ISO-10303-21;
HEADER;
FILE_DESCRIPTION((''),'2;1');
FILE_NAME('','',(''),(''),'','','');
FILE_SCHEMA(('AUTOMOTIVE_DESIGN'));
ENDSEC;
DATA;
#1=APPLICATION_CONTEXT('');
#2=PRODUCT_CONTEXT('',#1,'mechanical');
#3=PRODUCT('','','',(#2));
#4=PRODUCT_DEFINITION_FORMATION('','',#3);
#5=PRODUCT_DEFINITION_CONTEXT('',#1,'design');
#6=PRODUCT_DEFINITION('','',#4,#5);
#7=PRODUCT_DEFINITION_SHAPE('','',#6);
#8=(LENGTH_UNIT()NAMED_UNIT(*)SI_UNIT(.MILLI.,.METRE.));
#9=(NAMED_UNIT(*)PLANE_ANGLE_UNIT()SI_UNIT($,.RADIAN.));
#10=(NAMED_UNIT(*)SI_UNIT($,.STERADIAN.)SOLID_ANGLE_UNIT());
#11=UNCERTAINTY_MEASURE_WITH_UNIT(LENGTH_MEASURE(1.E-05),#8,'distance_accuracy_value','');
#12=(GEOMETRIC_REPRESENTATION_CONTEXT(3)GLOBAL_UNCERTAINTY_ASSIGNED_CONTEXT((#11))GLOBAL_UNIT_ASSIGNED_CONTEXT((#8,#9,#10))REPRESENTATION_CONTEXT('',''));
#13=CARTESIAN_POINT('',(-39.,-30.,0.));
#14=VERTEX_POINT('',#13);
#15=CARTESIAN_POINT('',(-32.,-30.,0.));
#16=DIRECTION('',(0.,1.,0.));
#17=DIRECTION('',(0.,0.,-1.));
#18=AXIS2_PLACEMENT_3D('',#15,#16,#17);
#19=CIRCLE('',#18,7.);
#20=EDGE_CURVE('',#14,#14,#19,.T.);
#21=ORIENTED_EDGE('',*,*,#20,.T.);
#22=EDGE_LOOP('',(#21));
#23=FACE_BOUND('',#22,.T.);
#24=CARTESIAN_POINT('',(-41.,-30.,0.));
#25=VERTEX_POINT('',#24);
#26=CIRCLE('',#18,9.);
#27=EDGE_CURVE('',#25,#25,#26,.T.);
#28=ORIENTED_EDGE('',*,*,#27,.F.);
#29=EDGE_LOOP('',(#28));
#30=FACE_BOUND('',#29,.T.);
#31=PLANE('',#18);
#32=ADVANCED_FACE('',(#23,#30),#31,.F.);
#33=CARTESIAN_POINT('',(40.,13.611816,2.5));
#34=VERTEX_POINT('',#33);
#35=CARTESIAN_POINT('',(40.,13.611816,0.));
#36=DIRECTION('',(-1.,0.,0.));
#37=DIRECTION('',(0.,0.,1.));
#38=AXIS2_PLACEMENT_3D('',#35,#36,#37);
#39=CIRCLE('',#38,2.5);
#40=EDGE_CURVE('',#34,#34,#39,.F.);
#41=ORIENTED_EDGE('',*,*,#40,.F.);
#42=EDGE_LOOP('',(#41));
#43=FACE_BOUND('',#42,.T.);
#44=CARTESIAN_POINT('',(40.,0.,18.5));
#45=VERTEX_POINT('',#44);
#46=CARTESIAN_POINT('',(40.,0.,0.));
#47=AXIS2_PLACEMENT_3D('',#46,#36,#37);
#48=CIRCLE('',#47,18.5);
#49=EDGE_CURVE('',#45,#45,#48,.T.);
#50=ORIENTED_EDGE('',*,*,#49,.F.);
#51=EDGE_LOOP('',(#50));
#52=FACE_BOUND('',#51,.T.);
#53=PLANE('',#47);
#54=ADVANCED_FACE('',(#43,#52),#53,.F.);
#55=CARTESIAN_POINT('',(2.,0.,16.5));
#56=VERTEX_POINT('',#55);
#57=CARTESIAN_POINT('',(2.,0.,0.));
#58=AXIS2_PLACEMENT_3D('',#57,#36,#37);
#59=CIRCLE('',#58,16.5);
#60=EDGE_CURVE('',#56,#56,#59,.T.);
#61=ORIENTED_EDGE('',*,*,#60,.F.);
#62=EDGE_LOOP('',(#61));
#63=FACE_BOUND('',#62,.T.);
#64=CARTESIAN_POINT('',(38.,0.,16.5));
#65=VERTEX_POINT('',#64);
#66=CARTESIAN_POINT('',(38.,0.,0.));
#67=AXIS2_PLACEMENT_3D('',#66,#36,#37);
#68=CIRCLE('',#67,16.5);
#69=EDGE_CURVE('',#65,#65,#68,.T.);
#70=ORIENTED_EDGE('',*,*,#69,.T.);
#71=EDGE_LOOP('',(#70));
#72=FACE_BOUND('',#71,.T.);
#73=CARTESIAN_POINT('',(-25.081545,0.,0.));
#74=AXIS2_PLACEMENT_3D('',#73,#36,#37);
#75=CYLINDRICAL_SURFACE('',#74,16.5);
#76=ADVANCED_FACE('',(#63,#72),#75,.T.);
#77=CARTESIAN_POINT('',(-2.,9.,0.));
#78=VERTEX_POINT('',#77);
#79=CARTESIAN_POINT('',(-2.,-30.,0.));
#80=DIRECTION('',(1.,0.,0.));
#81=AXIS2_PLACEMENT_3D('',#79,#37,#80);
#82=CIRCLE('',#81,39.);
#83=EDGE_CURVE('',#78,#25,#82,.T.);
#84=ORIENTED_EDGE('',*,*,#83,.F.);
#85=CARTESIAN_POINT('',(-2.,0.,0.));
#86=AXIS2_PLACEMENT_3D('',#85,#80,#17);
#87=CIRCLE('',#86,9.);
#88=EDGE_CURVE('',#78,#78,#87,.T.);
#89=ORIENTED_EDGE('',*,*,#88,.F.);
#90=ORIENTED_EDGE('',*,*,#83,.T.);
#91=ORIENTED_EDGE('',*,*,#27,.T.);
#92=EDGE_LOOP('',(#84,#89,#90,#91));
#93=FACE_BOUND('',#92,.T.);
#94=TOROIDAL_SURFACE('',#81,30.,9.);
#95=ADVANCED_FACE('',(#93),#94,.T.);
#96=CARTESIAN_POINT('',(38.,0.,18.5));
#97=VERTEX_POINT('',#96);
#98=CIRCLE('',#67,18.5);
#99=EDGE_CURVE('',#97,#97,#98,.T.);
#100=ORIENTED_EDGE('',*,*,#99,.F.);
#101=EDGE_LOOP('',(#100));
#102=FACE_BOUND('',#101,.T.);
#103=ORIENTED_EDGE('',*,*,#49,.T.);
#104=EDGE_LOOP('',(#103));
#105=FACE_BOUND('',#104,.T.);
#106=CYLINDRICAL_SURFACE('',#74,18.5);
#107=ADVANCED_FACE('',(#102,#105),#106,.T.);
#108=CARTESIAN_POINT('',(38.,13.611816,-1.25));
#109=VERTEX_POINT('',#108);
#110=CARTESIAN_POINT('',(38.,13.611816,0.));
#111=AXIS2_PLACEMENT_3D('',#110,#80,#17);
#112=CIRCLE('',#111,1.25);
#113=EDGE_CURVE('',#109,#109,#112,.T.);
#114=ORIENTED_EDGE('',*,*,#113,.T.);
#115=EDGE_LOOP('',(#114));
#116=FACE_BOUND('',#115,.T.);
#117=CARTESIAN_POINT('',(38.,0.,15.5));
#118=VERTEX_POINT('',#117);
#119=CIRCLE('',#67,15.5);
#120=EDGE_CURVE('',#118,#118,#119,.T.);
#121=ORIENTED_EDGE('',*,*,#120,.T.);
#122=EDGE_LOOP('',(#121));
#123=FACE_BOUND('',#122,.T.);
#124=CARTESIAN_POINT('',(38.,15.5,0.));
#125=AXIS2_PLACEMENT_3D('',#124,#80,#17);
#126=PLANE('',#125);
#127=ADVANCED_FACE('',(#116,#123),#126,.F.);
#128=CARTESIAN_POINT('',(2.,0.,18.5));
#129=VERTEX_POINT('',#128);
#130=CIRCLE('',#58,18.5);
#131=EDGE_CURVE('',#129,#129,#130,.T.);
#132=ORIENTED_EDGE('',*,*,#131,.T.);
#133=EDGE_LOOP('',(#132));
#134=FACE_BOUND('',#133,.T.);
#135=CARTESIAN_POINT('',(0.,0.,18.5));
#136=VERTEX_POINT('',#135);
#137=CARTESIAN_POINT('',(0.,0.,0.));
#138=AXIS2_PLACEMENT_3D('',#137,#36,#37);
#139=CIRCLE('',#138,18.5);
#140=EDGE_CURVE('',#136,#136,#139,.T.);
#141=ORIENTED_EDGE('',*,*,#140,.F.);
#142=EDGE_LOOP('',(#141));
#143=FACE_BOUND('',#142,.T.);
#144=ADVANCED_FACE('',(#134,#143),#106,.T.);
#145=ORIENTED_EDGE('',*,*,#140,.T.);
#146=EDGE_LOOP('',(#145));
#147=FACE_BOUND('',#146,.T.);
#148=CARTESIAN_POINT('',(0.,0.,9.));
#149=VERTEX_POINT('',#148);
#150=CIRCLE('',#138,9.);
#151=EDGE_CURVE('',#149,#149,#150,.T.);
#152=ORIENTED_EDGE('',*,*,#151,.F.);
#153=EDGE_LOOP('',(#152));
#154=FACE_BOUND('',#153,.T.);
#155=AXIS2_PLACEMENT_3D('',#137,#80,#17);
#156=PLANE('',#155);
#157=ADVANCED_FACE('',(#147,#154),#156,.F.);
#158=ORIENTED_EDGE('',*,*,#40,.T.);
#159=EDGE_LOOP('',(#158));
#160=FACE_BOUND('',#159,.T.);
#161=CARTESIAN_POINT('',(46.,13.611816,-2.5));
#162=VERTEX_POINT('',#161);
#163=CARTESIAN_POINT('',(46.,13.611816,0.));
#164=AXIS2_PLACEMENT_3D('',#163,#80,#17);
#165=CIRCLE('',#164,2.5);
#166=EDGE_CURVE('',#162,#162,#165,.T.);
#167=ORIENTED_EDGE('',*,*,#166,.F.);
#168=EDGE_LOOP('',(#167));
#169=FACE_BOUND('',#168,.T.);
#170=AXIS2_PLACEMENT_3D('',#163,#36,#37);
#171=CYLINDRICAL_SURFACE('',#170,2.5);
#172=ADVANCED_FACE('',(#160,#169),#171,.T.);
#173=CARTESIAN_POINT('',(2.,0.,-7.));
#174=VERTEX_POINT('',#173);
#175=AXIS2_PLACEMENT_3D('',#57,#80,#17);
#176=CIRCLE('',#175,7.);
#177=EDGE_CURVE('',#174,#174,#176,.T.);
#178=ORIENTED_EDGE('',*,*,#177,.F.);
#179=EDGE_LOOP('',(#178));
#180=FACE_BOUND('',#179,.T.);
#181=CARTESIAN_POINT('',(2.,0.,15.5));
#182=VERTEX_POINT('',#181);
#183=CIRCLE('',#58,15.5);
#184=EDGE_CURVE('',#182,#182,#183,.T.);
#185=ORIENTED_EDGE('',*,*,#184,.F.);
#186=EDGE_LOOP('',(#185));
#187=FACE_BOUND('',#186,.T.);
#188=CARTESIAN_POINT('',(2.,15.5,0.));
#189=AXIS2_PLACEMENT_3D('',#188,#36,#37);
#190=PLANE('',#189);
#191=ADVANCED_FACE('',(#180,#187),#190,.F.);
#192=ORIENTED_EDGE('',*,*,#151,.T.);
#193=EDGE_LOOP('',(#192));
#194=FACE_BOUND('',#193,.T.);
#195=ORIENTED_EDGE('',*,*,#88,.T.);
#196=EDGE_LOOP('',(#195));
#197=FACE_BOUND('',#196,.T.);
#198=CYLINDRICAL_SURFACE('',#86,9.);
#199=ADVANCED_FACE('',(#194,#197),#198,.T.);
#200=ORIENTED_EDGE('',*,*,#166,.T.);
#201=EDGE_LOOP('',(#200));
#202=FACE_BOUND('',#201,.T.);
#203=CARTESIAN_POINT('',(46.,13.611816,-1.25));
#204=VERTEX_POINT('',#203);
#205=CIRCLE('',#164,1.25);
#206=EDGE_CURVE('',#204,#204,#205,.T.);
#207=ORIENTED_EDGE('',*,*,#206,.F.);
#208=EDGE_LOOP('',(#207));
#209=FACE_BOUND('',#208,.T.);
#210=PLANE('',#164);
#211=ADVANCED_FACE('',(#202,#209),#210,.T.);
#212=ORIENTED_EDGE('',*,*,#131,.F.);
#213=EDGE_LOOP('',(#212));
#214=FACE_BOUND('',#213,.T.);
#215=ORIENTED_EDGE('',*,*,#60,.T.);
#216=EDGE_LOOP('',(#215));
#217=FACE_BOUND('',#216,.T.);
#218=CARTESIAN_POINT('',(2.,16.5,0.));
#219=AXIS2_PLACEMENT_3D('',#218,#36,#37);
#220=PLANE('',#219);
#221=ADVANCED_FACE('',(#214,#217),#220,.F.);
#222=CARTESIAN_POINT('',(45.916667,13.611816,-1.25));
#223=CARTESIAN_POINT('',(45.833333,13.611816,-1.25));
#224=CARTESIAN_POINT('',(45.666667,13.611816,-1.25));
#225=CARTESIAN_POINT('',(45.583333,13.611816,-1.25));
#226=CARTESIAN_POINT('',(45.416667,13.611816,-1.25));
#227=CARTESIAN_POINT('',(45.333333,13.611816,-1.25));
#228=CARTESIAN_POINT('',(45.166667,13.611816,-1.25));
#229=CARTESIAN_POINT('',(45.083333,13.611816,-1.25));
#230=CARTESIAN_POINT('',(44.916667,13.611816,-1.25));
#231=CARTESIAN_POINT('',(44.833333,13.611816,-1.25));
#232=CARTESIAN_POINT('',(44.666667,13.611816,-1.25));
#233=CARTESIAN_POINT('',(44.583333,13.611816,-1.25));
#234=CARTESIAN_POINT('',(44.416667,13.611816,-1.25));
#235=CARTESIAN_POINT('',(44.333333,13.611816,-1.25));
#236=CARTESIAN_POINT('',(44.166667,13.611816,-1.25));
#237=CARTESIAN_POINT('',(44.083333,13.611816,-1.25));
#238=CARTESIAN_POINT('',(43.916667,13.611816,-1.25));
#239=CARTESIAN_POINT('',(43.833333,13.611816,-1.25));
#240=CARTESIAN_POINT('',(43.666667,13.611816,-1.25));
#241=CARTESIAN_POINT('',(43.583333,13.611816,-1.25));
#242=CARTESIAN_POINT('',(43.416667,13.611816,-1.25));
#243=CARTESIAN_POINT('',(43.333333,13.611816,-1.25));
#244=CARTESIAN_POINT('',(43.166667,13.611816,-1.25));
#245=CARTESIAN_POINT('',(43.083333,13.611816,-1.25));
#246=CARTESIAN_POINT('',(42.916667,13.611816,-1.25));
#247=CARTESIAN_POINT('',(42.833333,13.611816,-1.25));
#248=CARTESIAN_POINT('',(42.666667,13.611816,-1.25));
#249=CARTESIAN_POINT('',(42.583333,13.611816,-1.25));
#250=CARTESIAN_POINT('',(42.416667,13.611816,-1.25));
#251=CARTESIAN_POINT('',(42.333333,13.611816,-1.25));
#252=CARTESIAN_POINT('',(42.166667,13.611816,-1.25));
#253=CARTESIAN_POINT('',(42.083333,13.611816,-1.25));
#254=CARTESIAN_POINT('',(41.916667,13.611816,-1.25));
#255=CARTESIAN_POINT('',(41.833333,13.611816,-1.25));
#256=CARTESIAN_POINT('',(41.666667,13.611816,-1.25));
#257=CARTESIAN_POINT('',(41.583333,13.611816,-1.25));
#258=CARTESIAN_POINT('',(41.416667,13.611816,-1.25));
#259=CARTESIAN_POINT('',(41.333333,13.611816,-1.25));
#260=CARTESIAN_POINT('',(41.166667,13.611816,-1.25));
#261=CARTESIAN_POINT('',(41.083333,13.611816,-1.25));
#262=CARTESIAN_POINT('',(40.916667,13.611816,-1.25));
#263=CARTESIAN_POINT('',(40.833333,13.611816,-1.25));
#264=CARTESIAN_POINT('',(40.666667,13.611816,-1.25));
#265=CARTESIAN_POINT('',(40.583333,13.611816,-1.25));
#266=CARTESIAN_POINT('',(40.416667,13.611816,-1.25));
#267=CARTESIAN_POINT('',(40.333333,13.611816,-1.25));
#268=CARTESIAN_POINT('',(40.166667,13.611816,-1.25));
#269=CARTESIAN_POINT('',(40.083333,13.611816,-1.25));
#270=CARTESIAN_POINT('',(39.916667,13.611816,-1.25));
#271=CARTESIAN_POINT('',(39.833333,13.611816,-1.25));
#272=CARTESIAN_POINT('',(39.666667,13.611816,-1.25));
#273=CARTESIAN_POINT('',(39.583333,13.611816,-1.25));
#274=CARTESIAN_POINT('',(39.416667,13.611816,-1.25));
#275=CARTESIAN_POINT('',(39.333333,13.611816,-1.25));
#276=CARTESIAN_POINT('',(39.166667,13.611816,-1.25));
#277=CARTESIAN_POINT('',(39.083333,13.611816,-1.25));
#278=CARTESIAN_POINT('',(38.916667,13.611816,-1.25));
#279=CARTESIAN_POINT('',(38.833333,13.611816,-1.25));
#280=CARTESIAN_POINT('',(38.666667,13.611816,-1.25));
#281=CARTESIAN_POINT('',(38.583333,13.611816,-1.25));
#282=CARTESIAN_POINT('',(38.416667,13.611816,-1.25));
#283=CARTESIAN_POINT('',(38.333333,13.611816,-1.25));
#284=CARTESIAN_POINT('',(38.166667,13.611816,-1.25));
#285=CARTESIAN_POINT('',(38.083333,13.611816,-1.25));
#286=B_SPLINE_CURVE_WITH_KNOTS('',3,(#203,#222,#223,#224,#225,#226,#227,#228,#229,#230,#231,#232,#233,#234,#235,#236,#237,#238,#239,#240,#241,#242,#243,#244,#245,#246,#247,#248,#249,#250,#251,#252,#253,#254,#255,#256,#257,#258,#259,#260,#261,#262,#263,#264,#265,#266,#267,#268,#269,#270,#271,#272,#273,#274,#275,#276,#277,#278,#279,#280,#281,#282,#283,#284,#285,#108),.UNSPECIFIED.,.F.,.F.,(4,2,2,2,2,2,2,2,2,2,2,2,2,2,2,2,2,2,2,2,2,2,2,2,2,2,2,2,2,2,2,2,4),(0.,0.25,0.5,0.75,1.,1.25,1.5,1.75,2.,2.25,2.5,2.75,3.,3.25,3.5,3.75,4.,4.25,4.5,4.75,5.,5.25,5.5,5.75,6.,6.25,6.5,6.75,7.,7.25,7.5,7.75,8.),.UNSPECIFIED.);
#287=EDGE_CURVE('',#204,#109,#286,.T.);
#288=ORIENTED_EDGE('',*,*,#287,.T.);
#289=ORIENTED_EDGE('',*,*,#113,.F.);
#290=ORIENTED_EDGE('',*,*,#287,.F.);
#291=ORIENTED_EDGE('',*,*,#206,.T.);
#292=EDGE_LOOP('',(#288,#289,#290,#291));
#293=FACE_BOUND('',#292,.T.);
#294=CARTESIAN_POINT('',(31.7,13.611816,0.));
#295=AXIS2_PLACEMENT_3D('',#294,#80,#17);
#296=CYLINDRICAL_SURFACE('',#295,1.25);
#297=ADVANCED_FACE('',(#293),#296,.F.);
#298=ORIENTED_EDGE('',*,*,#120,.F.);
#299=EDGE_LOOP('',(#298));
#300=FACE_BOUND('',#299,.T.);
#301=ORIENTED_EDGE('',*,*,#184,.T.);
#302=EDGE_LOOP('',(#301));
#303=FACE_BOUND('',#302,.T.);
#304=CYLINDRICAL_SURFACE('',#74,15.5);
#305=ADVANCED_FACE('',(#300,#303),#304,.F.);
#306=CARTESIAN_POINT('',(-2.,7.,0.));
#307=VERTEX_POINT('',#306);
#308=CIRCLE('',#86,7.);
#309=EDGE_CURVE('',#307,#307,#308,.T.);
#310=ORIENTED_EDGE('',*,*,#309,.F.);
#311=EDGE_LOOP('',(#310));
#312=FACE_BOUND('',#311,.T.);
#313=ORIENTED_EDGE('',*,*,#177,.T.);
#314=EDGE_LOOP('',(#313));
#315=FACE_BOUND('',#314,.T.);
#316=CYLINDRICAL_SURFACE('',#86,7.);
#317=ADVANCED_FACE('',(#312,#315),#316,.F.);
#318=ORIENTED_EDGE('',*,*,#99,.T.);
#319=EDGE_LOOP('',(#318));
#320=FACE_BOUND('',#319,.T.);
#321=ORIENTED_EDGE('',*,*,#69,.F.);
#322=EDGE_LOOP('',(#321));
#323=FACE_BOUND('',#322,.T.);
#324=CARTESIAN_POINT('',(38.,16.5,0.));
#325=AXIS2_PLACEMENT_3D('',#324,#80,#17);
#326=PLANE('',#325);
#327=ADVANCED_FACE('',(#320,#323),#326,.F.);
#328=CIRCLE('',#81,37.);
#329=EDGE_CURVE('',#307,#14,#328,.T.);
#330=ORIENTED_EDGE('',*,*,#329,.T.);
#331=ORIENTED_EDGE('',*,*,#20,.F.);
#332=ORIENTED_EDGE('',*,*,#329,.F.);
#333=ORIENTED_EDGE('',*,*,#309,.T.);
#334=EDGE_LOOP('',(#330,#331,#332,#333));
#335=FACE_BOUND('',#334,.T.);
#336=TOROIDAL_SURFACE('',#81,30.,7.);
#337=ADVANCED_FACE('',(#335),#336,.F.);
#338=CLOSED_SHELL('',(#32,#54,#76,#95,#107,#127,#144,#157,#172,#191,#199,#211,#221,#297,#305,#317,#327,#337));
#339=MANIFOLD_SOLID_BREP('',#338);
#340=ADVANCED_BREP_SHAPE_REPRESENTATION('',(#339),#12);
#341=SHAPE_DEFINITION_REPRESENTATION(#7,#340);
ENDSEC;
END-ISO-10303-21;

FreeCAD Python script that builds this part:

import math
import FreeCAD as App
import Part
import Sketcher
from FreeCAD import Vector

doc = App.newDocument("Part")
params = doc.addObject("Spreadsheet::Sheet", "Params")
for row, (alias, value) in enumerate([
    ("sketch1_width", "36 mm"),
    ("sketch1_width2", "2 mm"),
    ("sketch1_height", "18.5 mm"),
    ("sketch1_height2", "15.5 mm"),
    ("revolution_angle", "360 deg"),
    ("sketch2_diameter", "5 mm"),
    ("pad1_length", "6 mm"),
    ("sketch3_diameter", "2.5 mm"),
    ("pocket1_length", "14.3 mm"),
    ("sketch4_diameter", "18 mm"),
    ("pocket2_length", "5 mm"),
    ("sketch5_diameter", "18 mm"),
    ("sketch5_diameter2", "14 mm"),
    ("sketch6_radius", "30 mm"),
    ("sketch6_width", "4 mm"),
], start=1):
    params.set(f"A{row}", alias)
    params.set(f"B{row}", "=" + value)
    params.setAlias(f"B{row}", alias)

body = doc.addObject("PartDesign::Body", "Body")

# Sketch on XY plane
sketch1 = body.newObject("Sketcher::SketchObject", "Sketch")
sketch1.AttachmentSupport = (doc.getObject("XY_Plane"), [""])
sketch1.MapMode = "FlatFace"
sketch1.addGeometry(Part.LineSegment(Vector(38, 16.5, 0), Vector(2, 16.5, 0)), False)
sketch1.addGeometry(Part.LineSegment(Vector(2, 16.5, 0), Vector(2, 18.5, 0)), False)
sketch1.addGeometry(Part.LineSegment(Vector(2, 18.5, 0), Vector(0, 18.5, 0)), False)
sketch1.addGeometry(Part.LineSegment(Vector(0, 18.5, 0), Vector(0, 0, 0)), False)
sketch1.addGeometry(Part.LineSegment(Vector(0, 0, 0), Vector(2, 0, 0)), False)
sketch1.addGeometry(Part.LineSegment(Vector(2, 0, 0), Vector(2, 15.5, 0)), False)
sketch1.addGeometry(Part.LineSegment(Vector(2, 15.5, 0), Vector(38, 15.5, 0)), False)
sketch1.addGeometry(Part.LineSegment(Vector(38, 15.5, 0), Vector(38, 0, 0)), False)
sketch1.addGeometry(Part.LineSegment(Vector(38, 0, 0), Vector(40, 0, 0)), False)
sketch1.addGeometry(Part.LineSegment(Vector(40, 0, 0), Vector(40, 18.5, 0)), False)
sketch1.addGeometry(Part.LineSegment(Vector(40, 18.5, 0), Vector(38, 18.5, 0)), False)
sketch1.addGeometry(Part.LineSegment(Vector(38, 18.5, 0), Vector(38, 16.5, 0)), False)
sketch1.addConstraint(Sketcher.Constraint("Coincident", 0, 2, 1, 1))
sketch1.addConstraint(Sketcher.Constraint("Coincident", 1, 2, 2, 1))
sketch1.addConstraint(Sketcher.Constraint("Coincident", 2, 2, 3, 1))
sketch1.addConstraint(Sketcher.Constraint("Coincident", 3, 2, 4, 1))
sketch1.addConstraint(Sketcher.Constraint("Coincident", 4, 2, 5, 1))
sketch1.addConstraint(Sketcher.Constraint("Coincident", 5, 2, 6, 1))
sketch1.addConstraint(Sketcher.Constraint("Coincident", 6, 2, 7, 1))
sketch1.addConstraint(Sketcher.Constraint("Coincident", 7, 2, 8, 1))
sketch1.addConstraint(Sketcher.Constraint("Coincident", 8, 2, 9, 1))
sketch1.addConstraint(Sketcher.Constraint("Coincident", 9, 2, 10, 1))
sketch1.addConstraint(Sketcher.Constraint("Coincident", 10, 2, 11, 1))
sketch1.addConstraint(Sketcher.Constraint("Coincident", 11, 2, 0, 1))
sketch1.addConstraint(Sketcher.Constraint("Horizontal", 0))
sketch1.addConstraint(Sketcher.Constraint("Vertical", 1))
sketch1.addConstraint(Sketcher.Constraint("Horizontal", 2))
sketch1.addConstraint(Sketcher.Constraint("Vertical", 3))
sketch1.addConstraint(Sketcher.Constraint("Horizontal", 4))
sketch1.addConstraint(Sketcher.Constraint("Vertical", 5))
sketch1.addConstraint(Sketcher.Constraint("Horizontal", 6))
sketch1.addConstraint(Sketcher.Constraint("Vertical", 7))
sketch1.addConstraint(Sketcher.Constraint("Horizontal", 8))
sketch1.addConstraint(Sketcher.Constraint("Vertical", 9))
sketch1.addConstraint(Sketcher.Constraint("Horizontal", 10))
sketch1.addConstraint(Sketcher.Constraint("Vertical", 11))
sketch1.addConstraint(Sketcher.Constraint("Coincident", 3, 2, -1, 1))
sketch1.addConstraint(Sketcher.Constraint("PointOnObject", 7, 2, -1))
sketch1.addConstraint(Sketcher.Constraint("Horizontal", 2, 2, 9, 2))
sketch1.addConstraint(Sketcher.Constraint("Vertical", 1, 2, 4, 2))
sketch1.addConstraint(Sketcher.Constraint("Vertical", 7, 2, 10, 2))
sketch1.addConstraint(Sketcher.Constraint("Equal", 4, 8))
sketch1.addConstraint(Sketcher.Constraint("Equal", 10, 1))
sketch1.addConstraint(Sketcher.Constraint("DistanceX", 0, 2, 0, 1, 36.0))
sketch1.addConstraint(Sketcher.Constraint("DistanceX", 2, 2, 2, 1, 2.0))
sketch1.addConstraint(Sketcher.Constraint("DistanceY", 3, 2, 3, 1, 18.5))
sketch1.addConstraint(Sketcher.Constraint("DistanceY", 5, 1, 5, 2, 15.5))
sketch1.setExpression("Constraints[31]", "Params.sketch1_width")
sketch1.setExpression("Constraints[32]", "Params.sketch1_width2")
sketch1.setExpression("Constraints[33]", "Params.sketch1_height")
sketch1.setExpression("Constraints[34]", "Params.sketch1_height2")
revolution = body.newObject("PartDesign::Revolution", "Revolution")
revolution.Profile = sketch1
revolution.ReferenceAxis = (sketch1, ["H_Axis"])
revolution.setExpression("Angle", "Params.revolution_angle")

# Sketch on YZ plane
sketch2 = body.newObject("Sketcher::SketchObject", "Sketch001")
sketch2.AttachmentSupport = (doc.getObject("YZ_Plane"), [""])
sketch2.MapMode = "FlatFace"
sketch2.AttachmentOffset = App.Placement(Vector(0, 0, 40), App.Rotation())
sketch2.addGeometry(Part.Circle(Vector(13.6, 0, 0), Vector(0, 0, 1), 2.5), False)
sketch2.addConstraint(Sketcher.Constraint("PointOnObject", 0, 3, -1))
sketch2.addConstraint(Sketcher.Constraint("Diameter", 0, 5.0))
sketch2.addConstraint(Sketcher.Constraint("DistanceX", -1, 1, 0, 3, 13.611816))
sketch2.setExpression("Constraints[1]", "Params.sketch2_diameter")
pad1 = body.newObject("PartDesign::Pad", "Pad")
pad1.Profile = sketch2
pad1.setExpression("Length", "Params.pad1_length")

# Sketch on YZ plane
sketch3 = body.newObject("Sketcher::SketchObject", "Sketch002")
sketch3.AttachmentSupport = (doc.getObject("YZ_Plane"), [""])
sketch3.MapMode = "FlatFace"
sketch3.AttachmentOffset = App.Placement(Vector(0, 0, 46), App.Rotation())
sketch3.addGeometry(Part.Circle(Vector(13.6, 0, 0), Vector(0, 0, 1), 1.2), False)
sketch3.addConstraint(Sketcher.Constraint("PointOnObject", 0, 3, -1))
sketch3.addConstraint(Sketcher.Constraint("Diameter", 0, 2.5))
sketch3.addConstraint(Sketcher.Constraint("DistanceX", -1, 1, 0, 3, 13.611816))
sketch3.setExpression("Constraints[1]", "Params.sketch3_diameter")
pocket1 = body.newObject("PartDesign::Pocket", "Pocket")
pocket1.Profile = sketch3
pocket1.setExpression("Length", "Params.pocket1_length")

# Sketch on YZ plane
sketch4 = body.newObject("Sketcher::SketchObject", "Sketch003")
sketch4.AttachmentSupport = (doc.getObject("YZ_Plane"), [""])
sketch4.MapMode = "FlatFace"
sketch4.addGeometry(Part.Circle(Vector(0, 0, 0), Vector(0, 0, 1), 9), False)
sketch4.addConstraint(Sketcher.Constraint("Coincident", 0, 3, -1, 1))
sketch4.addConstraint(Sketcher.Constraint("Diameter", 0, 18.0))
sketch4.setExpression("Constraints[1]", "Params.sketch4_diameter")
pocket2 = body.newObject("PartDesign::Pocket", "Pocket001")
pocket2.Profile = sketch4
pocket2.setExpression("Length", "Params.pocket2_length")
pocket2.Reversed = True

# Sketch on YZ plane
sketch5 = body.newObject("Sketcher::SketchObject", "Sketch004")
sketch5.AttachmentSupport = (doc.getObject("YZ_Plane"), [""])
sketch5.MapMode = "FlatFace"
sketch5.AttachmentOffset = App.Placement(Vector(0, 0, 2), App.Rotation())
sketch5.addGeometry(Part.Circle(Vector(0, 0, 0), Vector(0, 0, 1), 9), False)
sketch5.addGeometry(Part.Circle(Vector(0, 0, 0), Vector(0, 0, 1), 7), False)
sketch5.addConstraint(Sketcher.Constraint("Coincident", 0, 3, -1, 1))
sketch5.addConstraint(Sketcher.Constraint("Coincident", 1, 3, -1, 1))
sketch5.addConstraint(Sketcher.Constraint("Diameter", 0, 18.0))
sketch5.addConstraint(Sketcher.Constraint("Diameter", 1, 14.0))
sketch5.setExpression("Constraints[2]", "Params.sketch5_diameter")
sketch5.setExpression("Constraints[3]", "Params.sketch5_diameter2")

# Sketch on XY plane
sketch6 = body.newObject("Sketcher::SketchObject", "Sketch005")
sketch6.AttachmentSupport = (doc.getObject("XY_Plane"), [""])
sketch6.MapMode = "FlatFace"
sketch6.addGeometry(Part.LineSegment(Vector(2, 0, 0), Vector(-2, 0, 0)), False)
sketch6.addGeometry(Part.ArcOfCircle(Part.Circle(Vector(-2, -30, 0), Vector(0, 0, 1), 30), math.radians(90), math.radians(180)), False)
sketch6.addConstraint(Sketcher.Constraint("Tangent", 0, 2, 1, 1))
sketch6.addConstraint(Sketcher.Constraint("Horizontal", 0))
sketch6.addConstraint(Sketcher.Constraint("Symmetric", 0, 1, 0, 2, -1, 1))
sketch6.addConstraint(Sketcher.Constraint("Radius", 1, 30.0))
sketch6.addConstraint(Sketcher.Constraint("DistanceX", 0, 2, 0, 1, 4.0))
sketch6.addConstraint(Sketcher.Constraint("DistanceY", 1, 2, -1, 1, 30.0))
sketch6.setExpression("Constraints[3]", "Params.sketch6_radius")
sketch6.setExpression("Constraints[4]", "Params.sketch6_width")
doc.recompute()

additivepipe = body.newObject("PartDesign::AdditivePipe", "AdditivePipe")
additivepipe.Profile = sketch5
additivepipe.Spine = (sketch6, ["Edge1", "Edge2"])

doc.recompute()
